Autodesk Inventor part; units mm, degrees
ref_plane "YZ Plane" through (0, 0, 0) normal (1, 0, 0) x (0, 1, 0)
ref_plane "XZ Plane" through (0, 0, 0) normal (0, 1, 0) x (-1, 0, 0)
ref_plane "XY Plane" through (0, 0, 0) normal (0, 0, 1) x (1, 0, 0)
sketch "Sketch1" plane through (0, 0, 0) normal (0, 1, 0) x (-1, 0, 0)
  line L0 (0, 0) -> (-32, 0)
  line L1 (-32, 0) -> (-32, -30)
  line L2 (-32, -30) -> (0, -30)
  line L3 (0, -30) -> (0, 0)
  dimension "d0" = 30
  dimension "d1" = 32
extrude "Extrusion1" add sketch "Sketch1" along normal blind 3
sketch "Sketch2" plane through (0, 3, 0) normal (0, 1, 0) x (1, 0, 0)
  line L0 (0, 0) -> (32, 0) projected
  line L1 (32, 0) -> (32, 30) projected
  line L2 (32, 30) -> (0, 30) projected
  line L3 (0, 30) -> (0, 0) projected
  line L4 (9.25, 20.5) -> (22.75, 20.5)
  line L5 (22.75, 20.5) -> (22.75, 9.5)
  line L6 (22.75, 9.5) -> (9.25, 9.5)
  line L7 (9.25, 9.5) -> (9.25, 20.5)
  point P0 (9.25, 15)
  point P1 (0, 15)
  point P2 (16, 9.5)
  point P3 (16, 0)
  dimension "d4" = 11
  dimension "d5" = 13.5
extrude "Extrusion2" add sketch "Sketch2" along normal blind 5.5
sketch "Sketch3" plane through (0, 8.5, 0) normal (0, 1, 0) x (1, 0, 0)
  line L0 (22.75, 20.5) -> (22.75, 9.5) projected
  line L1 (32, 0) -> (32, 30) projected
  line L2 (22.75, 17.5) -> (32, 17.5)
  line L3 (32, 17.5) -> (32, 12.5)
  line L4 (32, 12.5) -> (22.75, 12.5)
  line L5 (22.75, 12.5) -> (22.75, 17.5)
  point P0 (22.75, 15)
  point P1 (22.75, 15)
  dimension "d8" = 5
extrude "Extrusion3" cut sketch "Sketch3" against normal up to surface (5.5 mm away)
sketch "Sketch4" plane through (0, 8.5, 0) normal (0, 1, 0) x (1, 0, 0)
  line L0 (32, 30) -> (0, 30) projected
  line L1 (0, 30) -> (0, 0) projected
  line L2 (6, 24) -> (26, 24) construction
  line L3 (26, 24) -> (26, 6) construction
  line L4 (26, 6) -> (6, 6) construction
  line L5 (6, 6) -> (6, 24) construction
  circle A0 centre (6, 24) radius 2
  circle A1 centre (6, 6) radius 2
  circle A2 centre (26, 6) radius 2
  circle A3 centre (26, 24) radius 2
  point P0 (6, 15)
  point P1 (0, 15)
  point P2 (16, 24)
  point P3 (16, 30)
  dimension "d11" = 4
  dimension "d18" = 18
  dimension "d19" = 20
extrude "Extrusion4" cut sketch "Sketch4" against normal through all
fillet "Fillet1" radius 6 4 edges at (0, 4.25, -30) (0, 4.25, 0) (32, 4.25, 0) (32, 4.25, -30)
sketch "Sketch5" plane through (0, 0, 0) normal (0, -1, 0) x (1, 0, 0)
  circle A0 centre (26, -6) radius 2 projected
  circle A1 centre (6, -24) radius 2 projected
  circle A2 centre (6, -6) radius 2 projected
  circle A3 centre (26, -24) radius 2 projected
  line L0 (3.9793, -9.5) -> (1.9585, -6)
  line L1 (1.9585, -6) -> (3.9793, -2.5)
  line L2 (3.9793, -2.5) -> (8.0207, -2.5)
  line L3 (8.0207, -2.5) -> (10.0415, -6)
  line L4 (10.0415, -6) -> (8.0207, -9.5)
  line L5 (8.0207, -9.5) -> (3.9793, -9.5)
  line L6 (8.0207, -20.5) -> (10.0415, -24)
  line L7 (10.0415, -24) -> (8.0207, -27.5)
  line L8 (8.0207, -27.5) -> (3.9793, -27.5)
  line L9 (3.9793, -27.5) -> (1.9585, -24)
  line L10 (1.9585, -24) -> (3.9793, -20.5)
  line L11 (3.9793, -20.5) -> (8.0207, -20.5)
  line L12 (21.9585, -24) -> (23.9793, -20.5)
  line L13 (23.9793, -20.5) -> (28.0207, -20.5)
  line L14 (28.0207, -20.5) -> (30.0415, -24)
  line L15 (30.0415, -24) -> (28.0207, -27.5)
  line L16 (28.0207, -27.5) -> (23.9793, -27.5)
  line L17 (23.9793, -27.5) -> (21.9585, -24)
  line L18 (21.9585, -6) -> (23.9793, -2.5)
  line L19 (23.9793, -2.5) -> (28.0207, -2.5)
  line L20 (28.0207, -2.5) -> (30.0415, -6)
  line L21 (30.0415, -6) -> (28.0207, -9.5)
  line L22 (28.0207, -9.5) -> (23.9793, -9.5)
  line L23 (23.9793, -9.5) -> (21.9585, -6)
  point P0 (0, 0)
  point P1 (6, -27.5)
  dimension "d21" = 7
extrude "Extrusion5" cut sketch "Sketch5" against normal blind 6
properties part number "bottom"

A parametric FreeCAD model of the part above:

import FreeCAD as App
import Part
import Sketcher
from FreeCAD import Vector
Q = App.Units.Quantity


def edges_at(feature, points):
    """Names of the edges that pass closest to the given points."""
    edges = feature.Shape.Edges
    near = lambda p: min(range(len(edges)), key=lambda i: edges[i].distToShape(Part.Vertex(*p))[0])
    return sorted({f"Edge{near(p) + 1}" for p in points})

doc = App.newDocument("Part")
body = doc.addObject("PartDesign::Body", "Body")

# Sketch on XZ plane
sketch1 = doc.addObject("Sketcher::SketchObject", "Sketch")
body.addObject(sketch1)
sketch1.AttachmentSupport = (doc.XZ_Plane, [""])
sketch1.MapMode = "FlatFace"
sketch1.addGeometry(Part.LineSegment(Vector(0, -30, 0), Vector(0, 0, 0)), False)
sketch1.addGeometry(Part.LineSegment(Vector(0, 0, 0), Vector(32, 0, 0)), False)
sketch1.addGeometry(Part.LineSegment(Vector(32, 0, 0), Vector(32, -30, 0)), False)
sketch1.addGeometry(Part.LineSegment(Vector(32, -30, 0), Vector(0, -30, 0)), False)
sketch1.addConstraint(Sketcher.Constraint("Coincident", 0, 2, 1, 1))
sketch1.addConstraint(Sketcher.Constraint("Coincident", 1, 2, 2, 1))
sketch1.addConstraint(Sketcher.Constraint("Coincident", 2, 2, 3, 1))
sketch1.addConstraint(Sketcher.Constraint("Coincident", 3, 2, 0, 1))
sketch1.addConstraint(Sketcher.Constraint("Vertical", 0))
sketch1.addConstraint(Sketcher.Constraint("Horizontal", 1))
sketch1.addConstraint(Sketcher.Constraint("Vertical", 2))
sketch1.addConstraint(Sketcher.Constraint("Horizontal", 3))
sketch1.addConstraint(Sketcher.Constraint("Coincident", 0, 2, -1, 1))
sketch1.addConstraint(Sketcher.Constraint("DistanceX", 1, 1, 1, 2, 32.0))
sketch1.addConstraint(Sketcher.Constraint("DistanceY", 0, 1, 0, 2, 30.0))
pad1 = doc.addObject("PartDesign::Pad", "Pad")
body.addObject(pad1)
pad1.Profile = sketch1
pad1.Length = 3
pad1.Reversed = True

# Sketch on XZ plane
sketch2 = doc.addObject("Sketcher::SketchObject", "Sketch001")
body.addObject(sketch2)
sketch2.AttachmentSupport = (doc.XZ_Plane, [""])
sketch2.MapMode = "FlatFace"
sketch2.AttachmentOffset = App.Placement(Vector(0, 0, -3), App.Rotation())
sketch2.addGeometry(Part.LineSegment(Vector(0, -30, 0), Vector(0, 0, 0)), False)
sketch2.addGeometry(Part.LineSegment(Vector(0, 0, 0), Vector(32, 0, 0)), False)
sketch2.addGeometry(Part.LineSegment(Vector(32, 0, 0), Vector(32, -30, 0)), False)
sketch2.addGeometry(Part.LineSegment(Vector(32, -30, 0), Vector(0, -30, 0)), False)
sketch2.addGeometry(Part.LineSegment(Vector(9, -10, 0), Vector(9, -20, 0)), False)
sketch2.addGeometry(Part.LineSegment(Vector(9, -20, 0), Vector(23, -20, 0)), False)
sketch2.addGeometry(Part.LineSegment(Vector(23, -20, 0), Vector(23, -10, 0)), False)
sketch2.addGeometry(Part.LineSegment(Vector(23, -10, 0), Vector(9, -10, 0)), False)
sketch2.addConstraint(Sketcher.Constraint("Coincident", 0, 2, 1, 1))
sketch2.addConstraint(Sketcher.Constraint("Coincident", 1, 2, 2, 1))
sketch2.addConstraint(Sketcher.Constraint("Coincident", 2, 2, 3, 1))
sketch2.addConstraint(Sketcher.Constraint("Coincident", 3, 2, 0, 1))
sketch2.addConstraint(Sketcher.Constraint("Coincident", 4, 2, 5, 1))
sketch2.addConstraint(Sketcher.Constraint("Coincident", 5, 2, 6, 1))
sketch2.addConstraint(Sketcher.Constraint("Coincident", 6, 2, 7, 1))
sketch2.addConstraint(Sketcher.Constraint("Coincident", 7, 2, 4, 1))
sketch2.addConstraint(Sketcher.Constraint("Vertical", 0))
sketch2.addConstraint(Sketcher.Constraint("Horizontal", 1))
sketch2.addConstraint(Sketcher.Constraint("Vertical", 2))
sketch2.addConstraint(Sketcher.Constraint("Horizontal", 3))
sketch2.addConstraint(Sketcher.Constraint("Vertical", 4))
sketch2.addConstraint(Sketcher.Constraint("Horizontal", 5))
sketch2.addConstraint(Sketcher.Constraint("Vertical", 6))
sketch2.addConstraint(Sketcher.Constraint("Horizontal", 7))
sketch2.addConstraint(Sketcher.Constraint("Coincident", 0, 2, -1, 1))
sketch2.addConstraint(Sketcher.Constraint("DistanceY", 4, 2, 4, 1, 11.0))
sketch2.addConstraint(Sketcher.Constraint("DistanceX", 5, 1, 5, 2, 13.5))
sketch2.addConstraint(Sketcher.Constraint("DistanceX", 1, 1, 1, 2, 32.0))
sketch2.addConstraint(Sketcher.Constraint("DistanceY", 0, 1, 0, 2, 30.0))
sketch2.addConstraint(Sketcher.Constraint("DistanceY", 4, 2, -1, 1, 20.5))
sketch2.addConstraint(Sketcher.Constraint("DistanceX", -1, 1, 4, 2, 9.25))
pad2 = doc.addObject("PartDesign::Pad", "Pad001")
body.addObject(pad2)
pad2.Profile = sketch2
pad2.Length = 5.5
pad2.Reversed = True

# Sketch on XZ plane
sketch3 = doc.addObject("Sketcher::SketchObject", "Sketch002")
body.addObject(sketch3)
sketch3.AttachmentSupport = (doc.XZ_Plane, [""])
sketch3.MapMode = "FlatFace"
sketch3.AttachmentOffset = App.Placement(Vector(0, 0, -8.5), App.Rotation())
sketch3.addGeometry(Part.LineSegment(Vector(32, -18, 0), Vector(23, -18, 0)), False)
sketch3.addGeometry(Part.LineSegment(Vector(23, -18, 0), Vector(23, -12, 0)), False)
sketch3.addGeometry(Part.LineSegment(Vector(23, -12, 0), Vector(32, -12, 0)), False)
sketch3.addGeometry(Part.LineSegment(Vector(32, -12, 0), Vector(32, -18, 0)), False)
sketch3.addConstraint(Sketcher.Constraint("Coincident", 0, 2, 1, 1))
sketch3.addConstraint(Sketcher.Constraint("Coincident", 1, 2, 2, 1))
sketch3.addConstraint(Sketcher.Constraint("Coincident", 2, 2, 3, 1))
sketch3.addConstraint(Sketcher.Constraint("Coincident", 3, 2, 0, 1))
sketch3.addConstraint(Sketcher.Constraint("Horizontal", 0))
sketch3.addConstraint(Sketcher.Constraint("Vertical", 1))
sketch3.addConstraint(Sketcher.Constraint("Horizontal", 2))
sketch3.addConstraint(Sketcher.Constraint("Vertical", 3))
sketch3.addConstraint(Sketcher.Constraint("DistanceY", 1, 1, 1, 2, 5.0))
sketch3.addConstraint(Sketcher.Constraint("DistanceX", -1, 1, 2, 2, 32.0))
sketch3.addConstraint(Sketcher.Constraint("DistanceX", 0, 2, 0, 1, 9.25))
sketch3.addConstraint(Sketcher.Constraint("DistanceY", 0, 2, -1, 1, 17.5))
pocket1 = doc.addObject("PartDesign::Pocket", "Pocket")
body.addObject(pocket1)
pocket1.Profile = sketch3
pocket1.Length = 5.5
pocket1.Reversed = True

# Sketch on XZ plane
sketch4 = doc.addObject("Sketcher::SketchObject", "Sketch003")
body.addObject(sketch4)
sketch4.AttachmentSupport = (doc.XZ_Plane, [""])
sketch4.MapMode = "FlatFace"
sketch4.AttachmentOffset = App.Placement(Vector(0, 0, -8.5), App.Rotation())
sketch4.addGeometry(Part.Circle(Vector(6, -24, 0), Vector(0, 0, 1), 2), False)
sketch4.addGeometry(Part.Circle(Vector(6, -6, 0), Vector(0, 0, 1), 2), False)
sketch4.addGeometry(Part.Circle(Vector(26, -6, 0), Vector(0, 0, 1), 2), False)
sketch4.addGeometry(Part.Circle(Vector(26, -24, 0), Vector(0, 0, 1), 2), False)
sketch4.addConstraint(Sketcher.Constraint("Equal", 0, 1))
sketch4.addConstraint(Sketcher.Constraint("Equal", 1, 2))
sketch4.addConstraint(Sketcher.Constraint("Equal", 2, 3))
sketch4.addConstraint(Sketcher.Constraint("Horizontal", 1, 3, 2, 3))
sketch4.addConstraint(Sketcher.Constraint("Horizontal", 0, 3, 3, 3))
sketch4.addConstraint(Sketcher.Constraint("Vertical", 0, 3, 1, 3))
sketch4.addConstraint(Sketcher.Constraint("Vertical", 2, 3, 3, 3))
sketch4.addConstraint(Sketcher.Constraint("Diameter", 0, 4.0))
sketch4.addConstraint(Sketcher.Constraint("DistanceY", 0, 3, 1, 3, 18.0))
sketch4.addConstraint(Sketcher.Constraint("DistanceX", 1, 3, 2, 3, 20.0))
sketch4.addConstraint(Sketcher.Constraint("DistanceX", -1, 1, 0, 3, 6.0))
sketch4.addConstraint(Sketcher.Constraint("DistanceY", 0, 3, -1, 1, 24.0))
pocket2 = doc.addObject("PartDesign::Pocket", "Pocket001")
body.addObject(pocket2)
pocket2.Profile = sketch4
pocket2.Type = "ThroughAll"
pocket2.Reversed = True
doc.recompute()

fillet = doc.addObject("PartDesign::Fillet", "Fillet")
body.addObject(fillet)
fillet.Base = (pocket2, edges_at(pocket2, [
    (0, 4.25, -30),
    (0, 4.25, 0),
    (32, 4.25, 0),
    (32, 4.25, -30),
]))
fillet.Radius = 6

# Sketch on XZ plane
sketch5 = doc.addObject("Sketcher::SketchObject", "Sketch004")
body.addObject(sketch5)
sketch5.AttachmentSupport = (doc.XZ_Plane, [""])
sketch5.MapMode = "FlatFace"
sketch5.addGeometry(Part.LineSegment(Vector(2, -6, 0), Vector(4, -9.5, 0)), False)
sketch5.addGeometry(Part.LineSegment(Vector(4, -9.5, 0), Vector(8, -9.5, 0)), False)
sketch5.addGeometry(Part.LineSegment(Vector(8, -9.5, 0), Vector(10, -6, 0)), False)
sketch5.addGeometry(Part.LineSegment(Vector(10, -6, 0), Vector(8, -2.5, 0)), False)
sketch5.addGeometry(Part.LineSegment(Vector(8, -2.5, 0), Vector(4, -2.5, 0)), False)
sketch5.addGeometry(Part.LineSegment(Vector(4, -2.5, 0), Vector(2, -6, 0)), False)
sketch5.addGeometry(Part.Circle(Vector(6, -6, 0), Vector(0, 0, 1), 2), False)
sketch5.addGeometry(Part.LineSegment(Vector(10, -24, 0), Vector(8, -20.5, 0)), False)
sketch5.addGeometry(Part.LineSegment(Vector(8, -20.5, 0), Vector(4, -20.5, 0)), False)
sketch5.addGeometry(Part.LineSegment(Vector(4, -20.5, 0), Vector(2, -24, 0)), False)
sketch5.addGeometry(Part.LineSegment(Vector(2, -24, 0), Vector(4, -27.5, 0)), False)
sketch5.addGeometry(Part.LineSegment(Vector(4, -27.5, 0), Vector(8, -27.5, 0)), False)
sketch5.addGeometry(Part.LineSegment(Vector(8, -27.5, 0), Vector(10, -24, 0)), False)
sketch5.addGeometry(Part.Circle(Vector(6, -24, 0), Vector(0, 0, 1), 2), False)
sketch5.addGeometry(Part.LineSegment(Vector(24, -20.5, 0), Vector(22, -24, 0)), False)
sketch5.addGeometry(Part.LineSegment(Vector(22, -24, 0), Vector(24, -27.5, 0)), False)
sketch5.addGeometry(Part.LineSegment(Vector(24, -27.5, 0), Vector(28, -27.5, 0)), False)
sketch5.addGeometry(Part.LineSegment(Vector(28, -27.5, 0), Vector(30, -24, 0)), False)
sketch5.addGeometry(Part.LineSegment(Vector(30, -24, 0), Vector(28, -20.5, 0)), False)
sketch5.addGeometry(Part.LineSegment(Vector(28, -20.5, 0), Vector(24, -20.5, 0)), False)
sketch5.addGeometry(Part.Circle(Vector(26, -24, 0), Vector(0, 0, 1), 2), False)
sketch5.addGeometry(Part.LineSegment(Vector(24, -2.5, 0), Vector(22, -6, 0)), False)
sketch5.addGeometry(Part.LineSegment(Vector(22, -6, 0), Vector(24, -9.5, 0)), False)
sketch5.addGeometry(Part.LineSegment(Vector(24, -9.5, 0), Vector(28, -9.5, 0)), False)
sketch5.addGeometry(Part.LineSegment(Vector(28, -9.5, 0), Vector(30, -6, 0)), False)
sketch5.addGeometry(Part.LineSegment(Vector(30, -6, 0), Vector(28, -2.5, 0)), False)
sketch5.addGeometry(Part.LineSegment(Vector(28, -2.5, 0), Vector(24, -2.5, 0)), False)
sketch5.addGeometry(Part.Circle(Vector(26, -6, 0), Vector(0, 0, 1), 2), False)
sketch5.addConstraint(Sketcher.Constraint("Coincident", 0, 2, 1, 1))
sketch5.addConstraint(Sketcher.Constraint("Coincident", 1, 2, 2, 1))
sketch5.addConstraint(Sketcher.Constraint("Coincident", 2, 2, 3, 1))
sketch5.addConstraint(Sketcher.Constraint("Coincident", 3, 2, 4, 1))
sketch5.addConstraint(Sketcher.Constraint("Coincident", 4, 2, 5, 1))
sketch5.addConstraint(Sketcher.Constraint("Coincident", 5, 2, 0, 1))
sketch5.addConstraint(Sketcher.Constraint("Coincident", 7, 2, 8, 1))
sketch5.addConstraint(Sketcher.Constraint("Coincident", 8, 2, 9, 1))
sketch5.addConstraint(Sketcher.Constraint("Coincident", 9, 2, 10, 1))
sketch5.addConstraint(Sketcher.Constraint("Coincident", 10, 2, 11, 1))
sketch5.addConstraint(Sketcher.Constraint("Coincident", 11, 2, 12, 1))
sketch5.addConstraint(Sketcher.Constraint("Coincident", 12, 2, 7, 1))
sketch5.addConstraint(Sketcher.Constraint("Coincident", 14, 2, 15, 1))
sketch5.addConstraint(Sketcher.Constraint("Coincident", 15, 2, 16, 1))
sketch5.addConstraint(Sketcher.Constraint("Coincident", 16, 2, 17, 1))
sketch5.addConstraint(Sketcher.Constraint("Coincident", 17, 2, 18, 1))
sketch5.addConstraint(Sketcher.Constraint("Coincident", 18, 2, 19, 1))
sketch5.addConstraint(Sketcher.Constraint("Coincident", 19, 2, 14, 1))
sketch5.addConstraint(Sketcher.Constraint("Coincident", 21, 2, 22, 1))
sketch5.addConstraint(Sketcher.Constraint("Coincident", 22, 2, 23, 1))
sketch5.addConstraint(Sketcher.Constraint("Coincident", 23, 2, 24, 1))
sketch5.addConstraint(Sketcher.Constraint("Coincident", 24, 2, 25, 1))
sketch5.addConstraint(Sketcher.Constraint("Coincident", 25, 2, 26, 1))
sketch5.addConstraint(Sketcher.Constraint("Coincident", 26, 2, 21, 1))
sketch5.addConstraint(Sketcher.Constraint("Horizontal", 1))
sketch5.addConstraint(Sketcher.Constraint("Horizontal", 4))
sketch5.addConstraint(Sketcher.Constraint("Horizontal", 8))
sketch5.addConstraint(Sketcher.Constraint("Horizontal", 11))
sketch5.addConstraint(Sketcher.Constraint("Horizontal", 16))
sketch5.addConstraint(Sketcher.Constraint("Horizontal", 19))
sketch5.addConstraint(Sketcher.Constraint("Horizontal", 23))
sketch5.addConstraint(Sketcher.Constraint("Horizontal", 26))
sketch5.addConstraint(Sketcher.Constraint("Equal", 6, 13))
sketch5.addConstraint(Sketcher.Constraint("Equal", 13, 20))
sketch5.addConstraint(Sketcher.Constraint("Equal", 20, 27))
sketch5.addConstraint(Sketcher.Constraint("Parallel", 0, 3))
sketch5.addConstraint(Sketcher.Constraint("Parallel", 2, 5))
sketch5.addConstraint(Sketcher.Constraint("Parallel", 3, 7))
sketch5.addConstraint(Sketcher.Constraint("Parallel", 5, 9))
sketch5.addConstraint(Sketcher.Constraint("Parallel", 7, 10))
sketch5.addConstraint(Sketcher.Constraint("Parallel", 9, 12))
sketch5.addConstraint(Sketcher.Constraint("Parallel", 12, 14))
sketch5.addConstraint(Sketcher.Constraint("Parallel", 10, 15))
sketch5.addConstraint(Sketcher.Constraint("Parallel", 14, 17))
sketch5.addConstraint(Sketcher.Constraint("Parallel", 15, 18))
sketch5.addConstraint(Sketcher.Constraint("Parallel", 17, 21))
sketch5.addConstraint(Sketcher.Constraint("Parallel", 18, 22))
sketch5.addConstraint(Sketcher.Constraint("Parallel", 21, 24))
sketch5.addConstraint(Sketcher.Constraint("Parallel", 22, 25))
sketch5.addConstraint(Sketcher.Constraint("Horizontal", 13, 3, 20, 3))
sketch5.addConstraint(Sketcher.Constraint("Horizontal", 6, 3, 27, 3))
sketch5.addConstraint(Sketcher.Constraint("Horizontal", 27, 3, 2, 2))
sketch5.addConstraint(Sketcher.Constraint("Horizontal", 2, 2, 5, 2))
sketch5.addConstraint(Sketcher.Constraint("Horizontal", 20, 3, 9, 2))
sketch5.addConstraint(Sketcher.Constraint("Horizontal", 9, 2, 12, 2))
sketch5.addConstraint(Sketcher.Constraint("Horizontal", 12, 2, 14, 2))
sketch5.addConstraint(Sketcher.Constraint("Horizontal", 11, 2, 15, 2))
sketch5.addConstraint(Sketcher.Constraint("Horizontal", 14, 2, 17, 2))
sketch5.addConstraint(Sketcher.Constraint("Horizontal", 8, 2, 18, 2))
sketch5.addConstraint(Sketcher.Constraint("Horizontal", 5, 2, 21, 2))
sketch5.addConstraint(Sketcher.Constraint("Horizontal", 1, 2, 22, 2))
sketch5.addConstraint(Sketcher.Constraint("Horizontal", 21, 2, 24, 2))
sketch5.addConstraint(Sketcher.Constraint("Horizontal", 4, 2, 25, 2))
sketch5.addConstraint(Sketcher.Constraint("Vertical", 6, 3, 13, 3))
sketch5.addConstraint(Sketcher.Constraint("Vertical", 20, 3, 27, 3))
sketch5.addConstraint(Sketcher.Constraint("Vertical", 1, 2, 3, 2))
sketch5.addConstraint(Sketcher.Constraint("Vertical", 0, 2, 4, 2))
sketch5.addConstraint(Sketcher.Constraint("Vertical", 3, 2, 7, 2))
sketch5.addConstraint(Sketcher.Constraint("Vertical", 4, 2, 8, 2))
sketch5.addConstraint(Sketcher.Constraint("Vertical", 5, 2, 9, 2))
sketch5.addConstraint(Sketcher.Constraint("Vertical", 8, 2, 10, 2))
sketch5.addConstraint(Sketcher.Constraint("Vertical", 14, 2, 21, 2))
sketch5.addConstraint(Sketcher.Constraint("Vertical", 18, 2, 23, 2))
sketch5.addConstraint(Sketcher.Constraint("Equal", 11, 16))
sketch5.addConstraint(Sketcher.Constraint("Diameter", 6, 4.0))
sketch5.addConstraint(Sketcher.Constraint("DistanceY", 1, 2, 3, 2, 7.0))
sketch5.addConstraint(Sketcher.Constraint("Angle", 0, Q("-59.999 deg")))
sketch5.addConstraint(Sketcher.Constraint("DistanceX", -1, 1, 6, 3, 6.0))
sketch5.addConstraint(Sketcher.Constraint("DistanceY", 6, 3, -1, 1, 6.0))
sketch5.addConstraint(Sketcher.Constraint("DistanceY", 13, 3, -1, 1, 24.0))
sketch5.addConstraint(Sketcher.Constraint("DistanceX", -1, 1, 20, 3, 26.0))
sketch5.addConstraint(Sketcher.Constraint("DistanceX", 11, 2, 16, 2, 20.0))
sketch5.addConstraint(Sketcher.Constraint("DistanceX", 1, 1, 1, 2, 4.0414))
sketch5.addConstraint(Sketcher.Constraint("DistanceX", -1, 1, 0, 2, 3.9793))
pocket3 = doc.addObject("PartDesign::Pocket", "Pocket002")
body.addObject(pocket3)
pocket3.Profile = sketch5
pocket3.Length = 6

doc.recompute()
